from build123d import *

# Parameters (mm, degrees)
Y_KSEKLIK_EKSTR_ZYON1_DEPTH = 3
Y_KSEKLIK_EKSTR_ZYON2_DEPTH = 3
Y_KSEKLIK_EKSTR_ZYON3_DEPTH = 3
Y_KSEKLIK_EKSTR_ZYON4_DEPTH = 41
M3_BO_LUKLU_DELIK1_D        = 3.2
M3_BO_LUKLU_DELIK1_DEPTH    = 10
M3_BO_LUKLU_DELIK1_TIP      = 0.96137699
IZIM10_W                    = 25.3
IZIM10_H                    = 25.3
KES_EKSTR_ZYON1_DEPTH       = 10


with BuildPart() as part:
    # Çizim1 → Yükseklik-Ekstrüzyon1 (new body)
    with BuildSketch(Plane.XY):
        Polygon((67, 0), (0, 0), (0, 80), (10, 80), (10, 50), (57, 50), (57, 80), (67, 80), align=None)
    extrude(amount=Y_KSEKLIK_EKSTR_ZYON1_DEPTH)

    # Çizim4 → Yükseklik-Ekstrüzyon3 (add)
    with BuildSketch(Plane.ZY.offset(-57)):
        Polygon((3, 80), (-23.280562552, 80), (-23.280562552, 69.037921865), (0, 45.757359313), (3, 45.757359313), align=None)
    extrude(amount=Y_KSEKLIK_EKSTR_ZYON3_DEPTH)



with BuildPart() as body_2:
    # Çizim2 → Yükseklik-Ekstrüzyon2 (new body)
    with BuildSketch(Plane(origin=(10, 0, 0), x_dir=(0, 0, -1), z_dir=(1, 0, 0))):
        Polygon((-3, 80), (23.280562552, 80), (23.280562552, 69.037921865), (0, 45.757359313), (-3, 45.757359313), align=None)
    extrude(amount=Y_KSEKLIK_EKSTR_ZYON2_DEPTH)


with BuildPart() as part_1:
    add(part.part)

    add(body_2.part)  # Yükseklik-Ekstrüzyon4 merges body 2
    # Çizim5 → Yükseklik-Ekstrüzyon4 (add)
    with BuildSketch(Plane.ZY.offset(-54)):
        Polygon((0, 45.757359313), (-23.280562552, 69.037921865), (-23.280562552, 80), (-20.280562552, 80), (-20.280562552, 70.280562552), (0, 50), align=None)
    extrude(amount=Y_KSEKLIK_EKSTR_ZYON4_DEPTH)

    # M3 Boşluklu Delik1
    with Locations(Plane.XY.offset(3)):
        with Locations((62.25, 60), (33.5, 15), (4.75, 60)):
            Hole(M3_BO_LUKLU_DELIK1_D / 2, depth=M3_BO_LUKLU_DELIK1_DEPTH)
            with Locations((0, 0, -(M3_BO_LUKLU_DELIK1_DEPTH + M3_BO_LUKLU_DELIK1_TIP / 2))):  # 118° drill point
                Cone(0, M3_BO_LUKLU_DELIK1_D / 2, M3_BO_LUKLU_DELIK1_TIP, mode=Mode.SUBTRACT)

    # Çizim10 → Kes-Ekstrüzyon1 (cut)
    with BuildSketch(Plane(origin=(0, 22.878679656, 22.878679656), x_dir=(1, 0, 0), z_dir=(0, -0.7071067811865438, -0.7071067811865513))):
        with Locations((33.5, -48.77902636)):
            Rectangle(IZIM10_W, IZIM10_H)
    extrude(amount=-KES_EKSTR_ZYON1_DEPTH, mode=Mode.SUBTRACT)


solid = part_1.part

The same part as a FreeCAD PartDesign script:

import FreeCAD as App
import Part
import Sketcher

V = App.Vector
Q = App.Units.Quantity


def add_polygon(sketch, points):
    """Adds a closed chain of lines whose ends are joined by coincident constraints."""
    first, n = sketch.GeometryCount, len(points)
    for a, b in zip(points, points[1:] + points[:1]):
        sketch.addGeometry(Part.LineSegment(App.Vector(*a, 0), App.Vector(*b, 0)), False)
    for i in range(n):
        sketch.addConstraint(Sketcher.Constraint("Coincident", first + i, 2, first + (i + 1) % n, 1))

doc = App.newDocument("Part")
body = doc.addObject("PartDesign::Body", "Body")

sketch1 = body.newObject("Sketcher::SketchObject", "Sketch")
sketch1.AttachmentSupport = (doc.getObject("XY_Plane"), [""])
sketch1.MapMode = "FlatFace"
add_polygon(sketch1, [(0, 0), (67, 0), (67, 80), (57, 80), (57, 50), (10, 50), (10, 80), (0, 80)])
sketch1.addConstraint(Sketcher.Constraint("Horizontal", 0))
sketch1.addConstraint(Sketcher.Constraint("Vertical", 1))
sketch1.addConstraint(Sketcher.Constraint("Horizontal", 2))
sketch1.addConstraint(Sketcher.Constraint("Vertical", 3))
sketch1.addConstraint(Sketcher.Constraint("Horizontal", 4))
sketch1.addConstraint(Sketcher.Constraint("Vertical", 5))
sketch1.addConstraint(Sketcher.Constraint("Horizontal", 6))
sketch1.addConstraint(Sketcher.Constraint("Vertical", 7))
sketch1.addConstraint(Sketcher.Constraint("Coincident", 7, 2, -1, 1))
sketch1.addConstraint(Sketcher.Constraint("Horizontal", 2, 2, 5, 2))
sketch1.addConstraint(Sketcher.Constraint("Equal", 2, 6))
sketch1.addConstraint(Sketcher.Constraint("DistanceX", 0, 1, 0, 2, Q("67 mm")))
sketch1.addConstraint(Sketcher.Constraint("DistanceX", 2, 2, 2, 1, Q("10 mm")))
sketch1.addConstraint(Sketcher.Constraint("DistanceY", 1, 1, 1, 2, Q("80 mm")))
sketch1.addConstraint(Sketcher.Constraint("DistanceY", 3, 2, 3, 1, Q("30 mm")))
pad1 = body.newObject("PartDesign::Pad", "Pad")
pad1.Profile = sketch1
pad1.Length = 3

sketch2 = body.newObject("Sketcher::SketchObject", "Sketch001")
sketch2.AttachmentSupport = (doc.getObject("YZ_Plane"), [""])
sketch2.MapMode = "FlatFace"
sketch2.AttachmentOffset = App.Placement(V(0, 0, 57), App.Rotation())
add_polygon(sketch2, [(80, 3), (80, -23.280563), (69.037922, -23.280563), (45.757359, 0), (45.757359, 3)])
sketch2.addConstraint(Sketcher.Constraint("Vertical", 0))
sketch2.addConstraint(Sketcher.Constraint("Horizontal", 1))
sketch2.addConstraint(Sketcher.Constraint("Vertical", 3))
sketch2.addConstraint(Sketcher.Constraint("Horizontal", 4))
sketch2.addConstraint(Sketcher.Constraint("PointOnObject", 2, 2, -1))
sketch2.addConstraint(Sketcher.Constraint("DistanceY", 3, 1, 3, 2, Q("3 mm")))
sketch2.addConstraint(Sketcher.Constraint("Angle", 2, Q("135 deg")))
sketch2.addConstraint(Sketcher.Constraint("DistanceX", -1, 1, 0, 2, Q("80 mm")))
sketch2.addConstraint(Sketcher.Constraint("DistanceX", 1, 2, 1, 1, Q("10.962078 mm")))
sketch2.addConstraint(Sketcher.Constraint("DistanceX", 4, 1, 4, 2, Q("34.242641 mm")))
pad2 = body.newObject("PartDesign::Pad", "Pad001")
pad2.Profile = sketch2
pad2.Length = 3
pad2.Reversed = True
body2 = doc.addObject("PartDesign::Body", "Body001")

sketch3 = body2.newObject("Sketcher::SketchObject", "Sketch002")
sketch3.AttachmentSupport = (doc.getObject("YZ_Plane001"), [""])
sketch3.MapMode = "FlatFace"
sketch3.AttachmentOffset = App.Placement(V(0, 0, 10), App.Rotation())
add_polygon(sketch3, [(80, -23.280563), (80, 3), (45.757359, 3), (45.757359, 0), (69.037922, -23.280563)])
sketch3.addConstraint(Sketcher.Constraint("Vertical", 0))
sketch3.addConstraint(Sketcher.Constraint("Horizontal", 1))
sketch3.addConstraint(Sketcher.Constraint("Vertical", 2))
sketch3.addConstraint(Sketcher.Constraint("Horizontal", 4))
sketch3.addConstraint(Sketcher.Constraint("PointOnObject", 2, 2, -1))
sketch3.addConstraint(Sketcher.Constraint("DistanceY", 2, 2, 2, 1, Q("3 mm")))
sketch3.addConstraint(Sketcher.Constraint("Angle", 3, Q("-45 deg")))
sketch3.addConstraint(Sketcher.Constraint("DistanceX", -1, 1, 0, 2, Q("80 mm")))
sketch3.addConstraint(Sketcher.Constraint("DistanceX", 1, 2, 1, 1, Q("34.242641 mm")))
sketch3.addConstraint(Sketcher.Constraint("DistanceX", 4, 1, 4, 2, Q("10.962078 mm")))
pad3 = body2.newObject("PartDesign::Pad", "Pad002")
pad3.Profile = sketch3
pad3.Length = 3
doc.recompute()

boolean = body.newObject("PartDesign::Boolean", "Boolean")
boolean.Type = "Fuse"
boolean.addObjects([body2])

sketch4 = body.newObject("Sketcher::SketchObject", "Sketch003")
sketch4.AttachmentSupport = (doc.getObject("YZ_Plane"), [""])
sketch4.MapMode = "FlatFace"
sketch4.AttachmentOffset = App.Placement(V(0, 0, 54), App.Rotation())
add_polygon(sketch4, [(69.037922, -23.280563), (45.757359, 0), (50, 0), (70.280563, -20.280563), (80, -20.280563), (80, -23.280563)])
sketch4.addConstraint(Sketcher.Constraint("Horizontal", 1))
sketch4.addConstraint(Sketcher.Constraint("Horizontal", 3))
sketch4.addConstraint(Sketcher.Constraint("Vertical", 4))
sketch4.addConstraint(Sketcher.Constraint("Horizontal", 5))
sketch4.addConstraint(Sketcher.Constraint("PointOnObject", 0, 2, -1))
sketch4.addConstraint(Sketcher.Constraint("Parallel", 0, 2))
sketch4.addConstraint(Sketcher.Constraint("DistanceY", 4, 2, 4, 1, Q("3 mm")))
sketch4.addConstraint(Sketcher.Constraint("Angle", 0, Q("135 deg")))
sketch4.addConstraint(Sketcher.Constraint("DistanceX", -1, 1, 1, 2, Q("50 mm")))
sketch4.addConstraint(Sketcher.Constraint("DistanceX", -1, 1, 3, 2, Q("80 mm")))
sketch4.addConstraint(Sketcher.Constraint("DistanceX", 1, 1, 1, 2, Q("4.242641 mm")))
sketch4.addConstraint(Sketcher.Constraint("DistanceX", 5, 2, 5, 1, Q("10.962078 mm")))
pad4 = body.newObject("PartDesign::Pad", "Pad003")
pad4.Profile = sketch4
pad4.Length = 41
pad4.Reversed = True

sketch5 = body.newObject("Sketcher::SketchObject", "Sketch004")
sketch5.AttachmentSupport = (doc.getObject("XY_Plane"), [""])
sketch5.MapMode = "FlatFace"
sketch5.AttachmentOffset = App.Placement(V(0, 0, 3), App.Rotation())
sketch5.addGeometry(Part.Circle(V(62.25, 60, 0), V(0, 0, 1), 1.6), False)
sketch5.addGeometry(Part.Circle(V(33.5, 15, 0), V(0, 0, 1), 1.6), False)
sketch5.addGeometry(Part.Circle(V(4.75, 60, 0), V(0, 0, 1), 1.6), False)
sketch5.addConstraint(Sketcher.Constraint("Equal", 0, 1))
sketch5.addConstraint(Sketcher.Constraint("Equal", 1, 2))
sketch5.addConstraint(Sketcher.Constraint("Horizontal", 0, 3, 2, 3))
sketch5.addConstraint(Sketcher.Constraint("Diameter", 0, Q("3.2 mm")))
sketch5.addConstraint(Sketcher.Constraint("DistanceY", -1, 1, 0, 3, Q("60 mm")))
sketch5.addConstraint(Sketcher.Constraint("DistanceY", -1, 1, 1, 3, Q("15 mm")))
sketch5.addConstraint(Sketcher.Constraint("DistanceX", -1, 1, 1, 3, Q("33.5 mm")))
sketch5.addConstraint(Sketcher.Constraint("DistanceX", 2, 3, 0, 3, Q("57.5 mm")))
sketch5.addConstraint(Sketcher.Constraint("DistanceX", -1, 1, 0, 3, Q("62.25 mm")))
doc.recompute()
hole = body.newObject("PartDesign::Hole", "Hole")
hole.Profile = sketch5
hole.ThreadType = "None"
hole.Diameter = 3.2
hole.DepthType = "Dimension"
hole.Depth = 10
hole.DrillPoint = "Angled"
hole.DrillPointAngle = 118

sketch6 = body.newObject("Sketcher::SketchObject", "Sketch005")
sketch6.Placement = App.Placement(V(0, 22.87868, 22.87868), App.Rotation(V(1, 0, 0), V(0, -0.707106781, 0.707106781), V(0, -0.707106781, -0.707106781), "ZXY"))
add_polygon(sketch6, [(20.85, -36.129026), (20.85, -61.429026), (46.15, -61.429026), (46.15, -36.129026)])
sketch6.addConstraint(Sketcher.Constraint("Vertical", 0))
sketch6.addConstraint(Sketcher.Constraint("Horizontal", 1))
sketch6.addConstraint(Sketcher.Constraint("Vertical", 2))
sketch6.addConstraint(Sketcher.Constraint("Horizontal", 3))
sketch6.addConstraint(Sketcher.Constraint("Equal", 3, 0))
sketch6.addConstraint(Sketcher.Constraint("DistanceX", 1, 1, 1, 2, Q("25.3 mm")))
sketch6.addConstraint(Sketcher.Constraint("DistanceX", -1, 1, 0, 2, Q("20.85 mm")))
sketch6.addConstraint(Sketcher.Constraint("DistanceY", 0, 2, -1, 1, Q("61.429026 mm")))
pocket1 = body.newObject("PartDesign::Pocket", "Pocket")
pocket1.Profile = sketch6
pocket1.Length = 10

doc.recompute()
